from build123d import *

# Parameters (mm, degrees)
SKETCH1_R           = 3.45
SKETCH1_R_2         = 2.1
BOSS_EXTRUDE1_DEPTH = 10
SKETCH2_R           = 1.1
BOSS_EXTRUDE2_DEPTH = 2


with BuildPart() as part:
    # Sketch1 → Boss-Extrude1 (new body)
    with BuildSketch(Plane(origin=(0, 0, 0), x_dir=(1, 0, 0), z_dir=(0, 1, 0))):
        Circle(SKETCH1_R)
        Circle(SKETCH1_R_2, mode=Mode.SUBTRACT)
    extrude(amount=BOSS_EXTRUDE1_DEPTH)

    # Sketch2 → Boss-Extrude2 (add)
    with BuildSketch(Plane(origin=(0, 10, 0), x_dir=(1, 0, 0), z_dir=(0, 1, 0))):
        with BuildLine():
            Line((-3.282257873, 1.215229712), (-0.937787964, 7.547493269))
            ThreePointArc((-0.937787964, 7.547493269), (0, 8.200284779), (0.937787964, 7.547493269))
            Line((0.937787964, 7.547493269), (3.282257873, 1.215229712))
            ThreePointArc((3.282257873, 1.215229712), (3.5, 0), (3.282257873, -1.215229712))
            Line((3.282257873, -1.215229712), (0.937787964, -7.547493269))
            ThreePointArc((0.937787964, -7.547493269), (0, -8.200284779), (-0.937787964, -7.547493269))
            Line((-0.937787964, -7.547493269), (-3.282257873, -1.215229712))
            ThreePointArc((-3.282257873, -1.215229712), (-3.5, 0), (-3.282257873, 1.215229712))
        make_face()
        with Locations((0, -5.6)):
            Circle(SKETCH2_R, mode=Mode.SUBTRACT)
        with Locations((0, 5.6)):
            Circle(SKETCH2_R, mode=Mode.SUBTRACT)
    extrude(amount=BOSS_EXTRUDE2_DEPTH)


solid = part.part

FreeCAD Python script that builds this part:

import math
import FreeCAD as App
import Part
import Sketcher

V = App.Vector
Q = App.Units.Quantity

doc = App.newDocument("Part")
body = doc.addObject("PartDesign::Body", "Body")

# Sketch on XZ plane
sketch1 = body.newObject("Sketcher::SketchObject", "Sketch")
sketch1.AttachmentSupport = (doc.getObject("XZ_Plane"), [""])
sketch1.MapMode = "FlatFace"
sketch1.addGeometry([
    Part.Circle(V(0, 0, 0), V(0, 0, 1), 3.45),
    Part.Circle(V(0, 0, 0), V(0, 0, 1), 2.1),
], False)
sketch1.addConstraint([
    Sketcher.Constraint("Coincident", 0, 3, -1, 1),
    Sketcher.Constraint("Coincident", 1, 3, -1, 1),
    Sketcher.Constraint("Diameter", 0, Q("6.9 mm")),
    Sketcher.Constraint("Diameter", 1, Q("4.2 mm")),
])
pad1 = body.newObject("PartDesign::Pad", "Pad")
pad1.Profile = sketch1
pad1.Length = 10
pad1.Reversed = True

# Sketch on XZ plane
sketch2 = body.newObject("Sketcher::SketchObject", "Sketch001")
sketch2.AttachmentSupport = (doc.getObject("XZ_Plane"), [""])
sketch2.MapMode = "FlatFace"
sketch2.AttachmentOffset = App.Placement(V(0, 0, -10), App.Rotation())
sketch2.addGeometry([
    Part.LineSegment(V(-0.937788, -7.547493, 0), V(-3.282258, -1.21523, 0)),  # 0
    Part.ArcOfCircle(Part.Circle(V(0, 0, 0), V(0, 0, 1), 3.5), math.radians(159.683331), math.radians(200.316669)),  # 1
    Part.LineSegment(V(-3.282258, 1.21523, 0), V(-0.937788, 7.547493, 0)),  # 2
    Part.ArcOfCircle(Part.Circle(V(0, 7.200285, 0), V(0, 0, 1), 1), math.radians(20.316669), math.radians(159.683331)),  # 3
    Part.LineSegment(V(0.937788, 7.547493, 0), V(3.282258, 1.21523, 0)),  # 4
    Part.ArcOfCircle(Part.Circle(V(0, 0, 0), V(0, 0, 1), 3.5), math.radians(-20.316669), math.radians(20.316669)),  # 5
    Part.LineSegment(V(3.282258, -1.21523, 0), V(0.937788, -7.547493, 0)),  # 6
    Part.ArcOfCircle(Part.Circle(V(0, -7.200285, 0), V(0, 0, 1), 1), math.radians(-159.683331), math.radians(-20.316669)),  # 7
    Part.Circle(V(0, 5.6, 0), V(0, 0, 1), 1.1),  # 8
    Part.Circle(V(0, -5.6, 0), V(0, 0, 1), 1.1),  # 9
], False)
sketch2.addConstraint([
    Sketcher.Constraint("Tangent", 0, 2, 1, 2),
    Sketcher.Constraint("Tangent", 1, 1, 2, 1),
    Sketcher.Constraint("Tangent", 2, 2, 3, 2),
    Sketcher.Constraint("Tangent", 3, 1, 4, 1),
    Sketcher.Constraint("Tangent", 4, 2, 5, 2),
    Sketcher.Constraint("Tangent", 5, 1, 6, 1),
    Sketcher.Constraint("Tangent", 6, 2, 7, 2),
    Sketcher.Constraint("Tangent", 7, 1, 0, 1),
    Sketcher.Constraint("Coincident", 1, 3, -1, 1),
    Sketcher.Constraint("Coincident", 5, 3, -1, 1),
    Sketcher.Constraint("Equal", 1, 5),
    Sketcher.Constraint("Equal", 3, 7),
    Sketcher.Constraint("Equal", 8, 9),
    Sketcher.Constraint("Symmetric", 3, 3, 7, 3, -1, 1),
    Sketcher.Constraint("Symmetric", 8, 3, 9, 3, -1, 1),
    Sketcher.Constraint("PointOnObject", 3, 3, -2),
    Sketcher.Constraint("PointOnObject", 8, 3, -2),
    Sketcher.Constraint("Radius", 3, Q("1 mm")),
    Sketcher.Constraint("Diameter", 8, Q("2.2 mm")),
    Sketcher.Constraint("Radius", 1, Q("3.5 mm")),
    Sketcher.Constraint("DistanceY", -1, 1, 8, 3, Q("5.6 mm")),
    Sketcher.Constraint("Distance", 0, Q("6.75234 mm")),
])
pad2 = body.newObject("PartDesign::Pad", "Pad001")
pad2.Profile = sketch2
pad2.Length = 2
pad2.Reversed = True

doc.recompute()
